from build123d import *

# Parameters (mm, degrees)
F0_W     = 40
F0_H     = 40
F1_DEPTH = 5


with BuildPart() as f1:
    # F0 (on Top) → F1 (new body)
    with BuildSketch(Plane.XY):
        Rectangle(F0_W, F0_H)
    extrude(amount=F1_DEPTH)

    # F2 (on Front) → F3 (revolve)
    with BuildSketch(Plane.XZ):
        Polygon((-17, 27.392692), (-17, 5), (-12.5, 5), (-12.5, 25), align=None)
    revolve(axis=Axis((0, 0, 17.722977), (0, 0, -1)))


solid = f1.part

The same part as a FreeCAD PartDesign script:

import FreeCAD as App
import Part
import Sketcher
Q = App.Units.Quantity

doc = App.newDocument("Part")
body = doc.addObject("PartDesign::Body", "Body")

# Sketch on XY plane
sketch1 = doc.addObject("Sketcher::SketchObject", "Sketch")
body.addObject(sketch1)
sketch1.AttachmentSupport = (doc.XY_Plane, [""])
sketch1.MapMode = "FlatFace"
sketch1.addGeometry(Part.LineSegment(App.Vector(-20, 20, 0), App.Vector(-20, -20, 0)), False)
sketch1.addGeometry(Part.LineSegment(App.Vector(-20, -20, 0), App.Vector(20, -20, 0)), False)
sketch1.addGeometry(Part.LineSegment(App.Vector(20, -20, 0), App.Vector(20, 20, 0)), False)
sketch1.addGeometry(Part.LineSegment(App.Vector(20, 20, 0), App.Vector(-20, 20, 0)), False)
sketch1.addConstraint(Sketcher.Constraint("Coincident", 0, 2, 1, 1))
sketch1.addConstraint(Sketcher.Constraint("Coincident", 1, 2, 2, 1))
sketch1.addConstraint(Sketcher.Constraint("Coincident", 2, 2, 3, 1))
sketch1.addConstraint(Sketcher.Constraint("Coincident", 3, 2, 0, 1))
sketch1.addConstraint(Sketcher.Constraint("Vertical", 0))
sketch1.addConstraint(Sketcher.Constraint("Horizontal", 1))
sketch1.addConstraint(Sketcher.Constraint("Vertical", 2))
sketch1.addConstraint(Sketcher.Constraint("Horizontal", 3))
sketch1.addConstraint(Sketcher.Constraint("Symmetric", 0, 2, 2, 2, -1, 1))
sketch1.addConstraint(Sketcher.Constraint("Equal", 3, 0))
sketch1.addConstraint(Sketcher.Constraint("DistanceX", 1, 1, 1, 2, Q("40 mm")))
pad1 = doc.addObject("PartDesign::Pad", "Pad")
body.addObject(pad1)
pad1.Profile = sketch1
pad1.Length = 5

# Sketch on XZ plane
sketch2 = doc.addObject("Sketcher::SketchObject", "Sketch001")
body.addObject(sketch2)
sketch2.AttachmentSupport = (doc.XZ_Plane, [""])
sketch2.MapMode = "FlatFace"
sketch2.addGeometry(Part.LineSegment(App.Vector(-17, 27.4, 0), App.Vector(-17, 5, 0)), False)
sketch2.addGeometry(Part.LineSegment(App.Vector(-17, 5, 0), App.Vector(-12.5, 5, 0)), False)
sketch2.addGeometry(Part.LineSegment(App.Vector(-12.5, 5, 0), App.Vector(-12.5, 25, 0)), False)
sketch2.addGeometry(Part.LineSegment(App.Vector(-12.5, 25, 0), App.Vector(-17, 27.4, 0)), False)
sketch2.addConstraint(Sketcher.Constraint("Coincident", 0, 2, 1, 1))
sketch2.addConstraint(Sketcher.Constraint("Coincident", 1, 2, 2, 1))
sketch2.addConstraint(Sketcher.Constraint("Coincident", 2, 2, 3, 1))
sketch2.addConstraint(Sketcher.Constraint("Coincident", 3, 2, 0, 1))
sketch2.addConstraint(Sketcher.Constraint("Vertical", 0))
sketch2.addConstraint(Sketcher.Constraint("Horizontal", 1))
sketch2.addConstraint(Sketcher.Constraint("Vertical", 2))
sketch2.addConstraint(Sketcher.Constraint("DistanceY", 2, 1, 2, 2, Q("20 mm")))
sketch2.addConstraint(Sketcher.Constraint("Angle", 3, Q("152.000004 deg")))
sketch2.addConstraint(Sketcher.Constraint("DistanceX", 1, 1, 1, 2, Q("4.5 mm")))
sketch2.addConstraint(Sketcher.Constraint("DistanceX", 0, 2, -1, 1, Q("17 mm")))
sketch2.addConstraint(Sketcher.Constraint("DistanceY", -1, 1, 0, 2, Q("5 mm")))
revolution = doc.addObject("PartDesign::Revolution", "Revolution")
body.addObject(revolution)
revolution.Profile = sketch2
revolution.ReferenceAxis = (sketch2, ["V_Axis"])
revolution.Angle = 360

doc.recompute()
